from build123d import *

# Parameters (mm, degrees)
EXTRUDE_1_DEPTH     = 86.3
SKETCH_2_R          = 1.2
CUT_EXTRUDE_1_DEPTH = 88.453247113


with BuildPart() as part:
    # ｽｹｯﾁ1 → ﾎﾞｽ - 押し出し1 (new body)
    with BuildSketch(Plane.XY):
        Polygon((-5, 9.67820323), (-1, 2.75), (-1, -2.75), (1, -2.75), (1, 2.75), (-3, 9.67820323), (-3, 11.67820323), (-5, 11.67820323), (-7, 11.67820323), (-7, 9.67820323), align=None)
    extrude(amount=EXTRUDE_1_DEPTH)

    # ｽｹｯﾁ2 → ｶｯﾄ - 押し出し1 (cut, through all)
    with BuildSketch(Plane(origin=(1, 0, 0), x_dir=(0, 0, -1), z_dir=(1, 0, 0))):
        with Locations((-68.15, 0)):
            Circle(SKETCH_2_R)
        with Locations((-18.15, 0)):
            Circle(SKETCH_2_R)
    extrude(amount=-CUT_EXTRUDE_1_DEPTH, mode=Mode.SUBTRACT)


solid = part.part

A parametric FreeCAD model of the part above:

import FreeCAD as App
import Part
import Sketcher
from FreeCAD import Vector
Q = App.Units.Quantity

doc = App.newDocument("Part")
body = doc.addObject("PartDesign::Body", "Body")

# Sketch on XY plane
sketch1 = body.newObject("Sketcher::SketchObject", "Sketch")
sketch1.AttachmentSupport = (doc.getObject("XY_Plane"), [""])
sketch1.MapMode = "FlatFace"
sketch1.addGeometry([
    Part.LineSegment(Vector(-5, 9.678203, 0), Vector(-1, 2.75, 0)),  # 0
    Part.LineSegment(Vector(-1, 2.75, 0), Vector(-1, -2.75, 0)),  # 1
    Part.LineSegment(Vector(-1, -2.75, 0), Vector(1, -2.75, 0)),  # 2
    Part.LineSegment(Vector(1, -2.75, 0), Vector(1, 2.75, 0)),  # 3
    Part.LineSegment(Vector(1, 2.75, 0), Vector(-3, 9.678203, 0)),  # 4
    Part.LineSegment(Vector(-3, 9.678203, 0), Vector(-3, 11.678203, 0)),  # 5
    Part.LineSegment(Vector(-3, 11.678203, 0), Vector(-7, 11.678203, 0)),  # 6
    Part.LineSegment(Vector(-7, 11.678203, 0), Vector(-7, 9.678203, 0)),  # 7
    Part.LineSegment(Vector(-7, 9.678203, 0), Vector(-5, 9.678203, 0)),  # 8
], False)
sketch1.addConstraint([
    Sketcher.Constraint("Coincident", 0, 2, 1, 1),
    Sketcher.Constraint("Coincident", 1, 2, 2, 1),
    Sketcher.Constraint("Coincident", 2, 2, 3, 1),
    Sketcher.Constraint("Coincident", 3, 2, 4, 1),
    Sketcher.Constraint("Coincident", 4, 2, 5, 1),
    Sketcher.Constraint("Coincident", 5, 2, 6, 1),
    Sketcher.Constraint("Coincident", 6, 2, 7, 1),
    Sketcher.Constraint("Coincident", 7, 2, 8, 1),
    Sketcher.Constraint("Coincident", 8, 2, 0, 1),
    Sketcher.Constraint("Vertical", 1),
    Sketcher.Constraint("Horizontal", 2),
    Sketcher.Constraint("Vertical", 3),
    Sketcher.Constraint("Vertical", 5),
    Sketcher.Constraint("Horizontal", 6),
    Sketcher.Constraint("Vertical", 7),
    Sketcher.Constraint("Horizontal", 8),
    Sketcher.Constraint("Symmetric", 0, 2, 2, 2, -1, 1),
    Sketcher.Constraint("Parallel", 0, 4),
    Sketcher.Constraint("Horizontal", 0, 2, 3, 2),
    Sketcher.Constraint("Horizontal", 4, 2, 7, 2),
    Sketcher.Constraint("Equal", 2, 8),
    Sketcher.Constraint("Equal", 8, 5),
    Sketcher.Constraint("DistanceX", 2, 1, 2, 2, 2.0),
    Sketcher.Constraint("Angle", 0, Q("-60 deg")),
    Sketcher.Constraint("Distance", 0, 8.0),
    Sketcher.Constraint("DistanceY", 1, 2, 1, 1, 5.5),
])
pad1 = body.newObject("PartDesign::Pad", "Pad")
pad1.Profile = sketch1
pad1.Length = 86.3

# Sketch on YZ plane
sketch2 = body.newObject("Sketcher::SketchObject", "Sketch001")
sketch2.AttachmentSupport = (doc.getObject("YZ_Plane"), [""])
sketch2.MapMode = "FlatFace"
sketch2.AttachmentOffset = App.Placement(Vector(0, 0, 1), App.Rotation())
sketch2.addGeometry([
    Part.Circle(Vector(0, 68.15, 0), Vector(0, 0, 1), 1.2),
    Part.Circle(Vector(0, 18.15, 0), Vector(0, 0, 1), 1.2),
], False)
sketch2.addConstraint([
    Sketcher.Constraint("Equal", 0, 1),
    Sketcher.Constraint("PointOnObject", 0, 3, -2),
    Sketcher.Constraint("PointOnObject", 1, 3, -2),
    Sketcher.Constraint("Diameter", 0, 2.4),
    Sketcher.Constraint("DistanceY", 1, 3, 0, 3, 50.0),
    Sketcher.Constraint("DistanceY", -1, 1, 0, 3, 68.15),
])
pocket1 = body.newObject("PartDesign::Pocket", "Pocket")
pocket1.Profile = sketch2
pocket1.Type = "ThroughAll"

doc.recompute()
